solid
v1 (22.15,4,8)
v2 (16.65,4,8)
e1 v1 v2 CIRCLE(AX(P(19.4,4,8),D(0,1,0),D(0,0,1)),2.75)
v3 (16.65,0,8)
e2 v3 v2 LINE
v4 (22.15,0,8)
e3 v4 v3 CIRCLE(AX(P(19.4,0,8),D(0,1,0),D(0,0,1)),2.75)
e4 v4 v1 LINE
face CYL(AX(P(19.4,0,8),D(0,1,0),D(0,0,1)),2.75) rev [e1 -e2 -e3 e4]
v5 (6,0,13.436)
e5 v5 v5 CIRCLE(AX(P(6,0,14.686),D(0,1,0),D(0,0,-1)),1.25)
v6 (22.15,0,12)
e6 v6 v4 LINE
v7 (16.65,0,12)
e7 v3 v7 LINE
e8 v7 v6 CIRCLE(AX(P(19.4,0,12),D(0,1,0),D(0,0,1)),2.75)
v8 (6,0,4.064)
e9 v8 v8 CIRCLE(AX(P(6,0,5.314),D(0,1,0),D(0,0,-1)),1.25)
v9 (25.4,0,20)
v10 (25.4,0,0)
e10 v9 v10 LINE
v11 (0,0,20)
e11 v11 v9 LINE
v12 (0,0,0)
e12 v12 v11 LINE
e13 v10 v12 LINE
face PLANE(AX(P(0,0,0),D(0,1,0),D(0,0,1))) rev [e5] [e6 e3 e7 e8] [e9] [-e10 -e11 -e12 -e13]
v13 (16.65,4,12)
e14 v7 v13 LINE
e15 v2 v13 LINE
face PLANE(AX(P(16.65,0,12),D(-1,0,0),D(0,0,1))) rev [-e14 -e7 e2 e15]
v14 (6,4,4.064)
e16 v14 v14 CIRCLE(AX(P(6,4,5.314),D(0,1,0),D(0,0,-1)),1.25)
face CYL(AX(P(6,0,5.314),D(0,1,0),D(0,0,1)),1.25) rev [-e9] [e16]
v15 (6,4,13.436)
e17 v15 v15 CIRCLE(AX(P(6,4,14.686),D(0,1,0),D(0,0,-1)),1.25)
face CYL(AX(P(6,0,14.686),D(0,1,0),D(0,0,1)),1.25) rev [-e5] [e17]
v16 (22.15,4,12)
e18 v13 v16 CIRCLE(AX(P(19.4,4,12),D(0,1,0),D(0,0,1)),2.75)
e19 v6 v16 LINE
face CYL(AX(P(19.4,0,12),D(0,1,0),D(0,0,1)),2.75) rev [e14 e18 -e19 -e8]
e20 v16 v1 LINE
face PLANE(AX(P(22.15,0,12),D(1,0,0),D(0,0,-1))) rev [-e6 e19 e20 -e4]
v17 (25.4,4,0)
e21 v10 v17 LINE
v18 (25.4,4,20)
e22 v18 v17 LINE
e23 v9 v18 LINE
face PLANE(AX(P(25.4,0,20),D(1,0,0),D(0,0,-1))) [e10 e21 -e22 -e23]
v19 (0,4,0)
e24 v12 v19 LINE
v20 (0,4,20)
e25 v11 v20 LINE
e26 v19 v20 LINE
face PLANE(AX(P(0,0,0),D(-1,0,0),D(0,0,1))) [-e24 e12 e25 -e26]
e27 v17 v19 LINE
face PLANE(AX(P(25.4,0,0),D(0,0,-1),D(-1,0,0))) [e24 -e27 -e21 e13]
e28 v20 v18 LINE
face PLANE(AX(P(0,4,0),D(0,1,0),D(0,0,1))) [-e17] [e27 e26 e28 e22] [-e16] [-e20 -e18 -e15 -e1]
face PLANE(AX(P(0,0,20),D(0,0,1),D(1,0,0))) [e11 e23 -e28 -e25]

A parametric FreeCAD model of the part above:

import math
import FreeCAD as App
import Part
import Sketcher

V = App.Vector

doc = App.newDocument("Part")
params = doc.addObject("Spreadsheet::Sheet", "Params")
for row, (alias, value) in enumerate([
    ("sketch1_diameter", "2.5 mm"),
    ("sketch1_height", "20 mm"),
    ("sketch1_height2", "4 mm"),
    ("sketch1_radius", "2.75 mm"),
    ("sketch1_width", "25.4 mm"),
    ("pad1_length", "4 mm"),
], start=1):
    params.set(f"A{row}", alias)
    params.set(f"B{row}", "=" + value)
    params.setAlias(f"B{row}", alias)

body = doc.addObject("PartDesign::Body", "Body")

# Sketch on XZ plane
sketch1 = body.newObject("Sketcher::SketchObject", "Sketch")
sketch1.AttachmentSupport = (doc.getObject("XZ_Plane"), [""])
sketch1.MapMode = "FlatFace"
sketch1.AttachmentOffset = App.Placement(V(0, 0, -4), App.Rotation())
sketch1.addGeometry(Part.LineSegment(V(0, 0, 0), V(0, 20, 0)), False)
sketch1.addGeometry(Part.LineSegment(V(0, 20, 0), V(25.4, 20, 0)), False)
sketch1.addGeometry(Part.LineSegment(V(25.4, 20, 0), V(25.4, 0, 0)), False)
sketch1.addGeometry(Part.LineSegment(V(25.4, 0, 0), V(0, 0, 0)), False)
sketch1.addGeometry(Part.Circle(V(6, 14.686, 0), V(0, 0, 1), 1.25), False)
sketch1.addGeometry(Part.Circle(V(6, 5.314, 0), V(0, 0, 1), 1.25), False)
sketch1.addGeometry(Part.ArcOfCircle(Part.Circle(V(19.4, 12, 0), V(0, 0, 1), 2.75), math.radians(0), math.radians(180)), False)
sketch1.addGeometry(Part.LineSegment(V(16.65, 12, 0), V(16.65, 8, 0)), False)
sketch1.addGeometry(Part.ArcOfCircle(Part.Circle(V(19.4, 8, 0), V(0, 0, 1), 2.75), math.radians(180), math.radians(360)), False)
sketch1.addGeometry(Part.LineSegment(V(22.15, 8, 0), V(22.15, 12, 0)), False)
sketch1.addConstraint(Sketcher.Constraint("Coincident", 0, 2, 1, 1))
sketch1.addConstraint(Sketcher.Constraint("Coincident", 1, 2, 2, 1))
sketch1.addConstraint(Sketcher.Constraint("Coincident", 2, 2, 3, 1))
sketch1.addConstraint(Sketcher.Constraint("Coincident", 3, 2, 0, 1))
sketch1.addConstraint(Sketcher.Constraint("Tangent", 6, 2, 7, 1))
sketch1.addConstraint(Sketcher.Constraint("Tangent", 7, 2, 8, 1))
sketch1.addConstraint(Sketcher.Constraint("Tangent", 8, 2, 9, 1))
sketch1.addConstraint(Sketcher.Constraint("Tangent", 9, 2, 6, 1))
sketch1.addConstraint(Sketcher.Constraint("Vertical", 0))
sketch1.addConstraint(Sketcher.Constraint("Horizontal", 1))
sketch1.addConstraint(Sketcher.Constraint("Vertical", 2))
sketch1.addConstraint(Sketcher.Constraint("Horizontal", 3))
sketch1.addConstraint(Sketcher.Constraint("Vertical", 7))
sketch1.addConstraint(Sketcher.Constraint("Vertical", 9))
sketch1.addConstraint(Sketcher.Constraint("Coincident", 3, 2, -1, 1))
sketch1.addConstraint(Sketcher.Constraint("Equal", 4, 5))
sketch1.addConstraint(Sketcher.Constraint("Vertical", 4, 3, 5, 3))
sketch1.addConstraint(Sketcher.Constraint("Diameter", 4, 2.5))
sketch1.addConstraint(Sketcher.Constraint("DistanceY", 0, 1, 0, 2, 20.0))
sketch1.addConstraint(Sketcher.Constraint("DistanceY", 7, 2, 7, 1, 4.0))
sketch1.addConstraint(Sketcher.Constraint("Radius", 6, 2.75))
sketch1.addConstraint(Sketcher.Constraint("DistanceX", 1, 1, 1, 2, 25.4))
sketch1.addConstraint(Sketcher.Constraint("DistanceX", -1, 1, 4, 3, 6.0))
sketch1.addConstraint(Sketcher.Constraint("DistanceY", -1, 1, 6, 3, 12.0))
sketch1.addConstraint(Sketcher.Constraint("DistanceX", 6, 3, 1, 2, 6.0))
sketch1.addConstraint(Sketcher.Constraint("DistanceY", -1, 1, 4, 3, 14.686))
sketch1.addConstraint(Sketcher.Constraint("DistanceY", -1, 1, 5, 3, 5.314))
sketch1.setExpression("Constraints[17]", "Params.sketch1_diameter")
sketch1.setExpression("Constraints[18]", "Params.sketch1_height")
sketch1.setExpression("Constraints[19]", "Params.sketch1_height2")
sketch1.setExpression("Constraints[20]", "Params.sketch1_radius")
sketch1.setExpression("Constraints[21]", "Params.sketch1_width")
pad1 = body.newObject("PartDesign::Pad", "Pad")
pad1.Profile = sketch1
pad1.setExpression("Length", "Params.pad1_length")

doc.recompute()
